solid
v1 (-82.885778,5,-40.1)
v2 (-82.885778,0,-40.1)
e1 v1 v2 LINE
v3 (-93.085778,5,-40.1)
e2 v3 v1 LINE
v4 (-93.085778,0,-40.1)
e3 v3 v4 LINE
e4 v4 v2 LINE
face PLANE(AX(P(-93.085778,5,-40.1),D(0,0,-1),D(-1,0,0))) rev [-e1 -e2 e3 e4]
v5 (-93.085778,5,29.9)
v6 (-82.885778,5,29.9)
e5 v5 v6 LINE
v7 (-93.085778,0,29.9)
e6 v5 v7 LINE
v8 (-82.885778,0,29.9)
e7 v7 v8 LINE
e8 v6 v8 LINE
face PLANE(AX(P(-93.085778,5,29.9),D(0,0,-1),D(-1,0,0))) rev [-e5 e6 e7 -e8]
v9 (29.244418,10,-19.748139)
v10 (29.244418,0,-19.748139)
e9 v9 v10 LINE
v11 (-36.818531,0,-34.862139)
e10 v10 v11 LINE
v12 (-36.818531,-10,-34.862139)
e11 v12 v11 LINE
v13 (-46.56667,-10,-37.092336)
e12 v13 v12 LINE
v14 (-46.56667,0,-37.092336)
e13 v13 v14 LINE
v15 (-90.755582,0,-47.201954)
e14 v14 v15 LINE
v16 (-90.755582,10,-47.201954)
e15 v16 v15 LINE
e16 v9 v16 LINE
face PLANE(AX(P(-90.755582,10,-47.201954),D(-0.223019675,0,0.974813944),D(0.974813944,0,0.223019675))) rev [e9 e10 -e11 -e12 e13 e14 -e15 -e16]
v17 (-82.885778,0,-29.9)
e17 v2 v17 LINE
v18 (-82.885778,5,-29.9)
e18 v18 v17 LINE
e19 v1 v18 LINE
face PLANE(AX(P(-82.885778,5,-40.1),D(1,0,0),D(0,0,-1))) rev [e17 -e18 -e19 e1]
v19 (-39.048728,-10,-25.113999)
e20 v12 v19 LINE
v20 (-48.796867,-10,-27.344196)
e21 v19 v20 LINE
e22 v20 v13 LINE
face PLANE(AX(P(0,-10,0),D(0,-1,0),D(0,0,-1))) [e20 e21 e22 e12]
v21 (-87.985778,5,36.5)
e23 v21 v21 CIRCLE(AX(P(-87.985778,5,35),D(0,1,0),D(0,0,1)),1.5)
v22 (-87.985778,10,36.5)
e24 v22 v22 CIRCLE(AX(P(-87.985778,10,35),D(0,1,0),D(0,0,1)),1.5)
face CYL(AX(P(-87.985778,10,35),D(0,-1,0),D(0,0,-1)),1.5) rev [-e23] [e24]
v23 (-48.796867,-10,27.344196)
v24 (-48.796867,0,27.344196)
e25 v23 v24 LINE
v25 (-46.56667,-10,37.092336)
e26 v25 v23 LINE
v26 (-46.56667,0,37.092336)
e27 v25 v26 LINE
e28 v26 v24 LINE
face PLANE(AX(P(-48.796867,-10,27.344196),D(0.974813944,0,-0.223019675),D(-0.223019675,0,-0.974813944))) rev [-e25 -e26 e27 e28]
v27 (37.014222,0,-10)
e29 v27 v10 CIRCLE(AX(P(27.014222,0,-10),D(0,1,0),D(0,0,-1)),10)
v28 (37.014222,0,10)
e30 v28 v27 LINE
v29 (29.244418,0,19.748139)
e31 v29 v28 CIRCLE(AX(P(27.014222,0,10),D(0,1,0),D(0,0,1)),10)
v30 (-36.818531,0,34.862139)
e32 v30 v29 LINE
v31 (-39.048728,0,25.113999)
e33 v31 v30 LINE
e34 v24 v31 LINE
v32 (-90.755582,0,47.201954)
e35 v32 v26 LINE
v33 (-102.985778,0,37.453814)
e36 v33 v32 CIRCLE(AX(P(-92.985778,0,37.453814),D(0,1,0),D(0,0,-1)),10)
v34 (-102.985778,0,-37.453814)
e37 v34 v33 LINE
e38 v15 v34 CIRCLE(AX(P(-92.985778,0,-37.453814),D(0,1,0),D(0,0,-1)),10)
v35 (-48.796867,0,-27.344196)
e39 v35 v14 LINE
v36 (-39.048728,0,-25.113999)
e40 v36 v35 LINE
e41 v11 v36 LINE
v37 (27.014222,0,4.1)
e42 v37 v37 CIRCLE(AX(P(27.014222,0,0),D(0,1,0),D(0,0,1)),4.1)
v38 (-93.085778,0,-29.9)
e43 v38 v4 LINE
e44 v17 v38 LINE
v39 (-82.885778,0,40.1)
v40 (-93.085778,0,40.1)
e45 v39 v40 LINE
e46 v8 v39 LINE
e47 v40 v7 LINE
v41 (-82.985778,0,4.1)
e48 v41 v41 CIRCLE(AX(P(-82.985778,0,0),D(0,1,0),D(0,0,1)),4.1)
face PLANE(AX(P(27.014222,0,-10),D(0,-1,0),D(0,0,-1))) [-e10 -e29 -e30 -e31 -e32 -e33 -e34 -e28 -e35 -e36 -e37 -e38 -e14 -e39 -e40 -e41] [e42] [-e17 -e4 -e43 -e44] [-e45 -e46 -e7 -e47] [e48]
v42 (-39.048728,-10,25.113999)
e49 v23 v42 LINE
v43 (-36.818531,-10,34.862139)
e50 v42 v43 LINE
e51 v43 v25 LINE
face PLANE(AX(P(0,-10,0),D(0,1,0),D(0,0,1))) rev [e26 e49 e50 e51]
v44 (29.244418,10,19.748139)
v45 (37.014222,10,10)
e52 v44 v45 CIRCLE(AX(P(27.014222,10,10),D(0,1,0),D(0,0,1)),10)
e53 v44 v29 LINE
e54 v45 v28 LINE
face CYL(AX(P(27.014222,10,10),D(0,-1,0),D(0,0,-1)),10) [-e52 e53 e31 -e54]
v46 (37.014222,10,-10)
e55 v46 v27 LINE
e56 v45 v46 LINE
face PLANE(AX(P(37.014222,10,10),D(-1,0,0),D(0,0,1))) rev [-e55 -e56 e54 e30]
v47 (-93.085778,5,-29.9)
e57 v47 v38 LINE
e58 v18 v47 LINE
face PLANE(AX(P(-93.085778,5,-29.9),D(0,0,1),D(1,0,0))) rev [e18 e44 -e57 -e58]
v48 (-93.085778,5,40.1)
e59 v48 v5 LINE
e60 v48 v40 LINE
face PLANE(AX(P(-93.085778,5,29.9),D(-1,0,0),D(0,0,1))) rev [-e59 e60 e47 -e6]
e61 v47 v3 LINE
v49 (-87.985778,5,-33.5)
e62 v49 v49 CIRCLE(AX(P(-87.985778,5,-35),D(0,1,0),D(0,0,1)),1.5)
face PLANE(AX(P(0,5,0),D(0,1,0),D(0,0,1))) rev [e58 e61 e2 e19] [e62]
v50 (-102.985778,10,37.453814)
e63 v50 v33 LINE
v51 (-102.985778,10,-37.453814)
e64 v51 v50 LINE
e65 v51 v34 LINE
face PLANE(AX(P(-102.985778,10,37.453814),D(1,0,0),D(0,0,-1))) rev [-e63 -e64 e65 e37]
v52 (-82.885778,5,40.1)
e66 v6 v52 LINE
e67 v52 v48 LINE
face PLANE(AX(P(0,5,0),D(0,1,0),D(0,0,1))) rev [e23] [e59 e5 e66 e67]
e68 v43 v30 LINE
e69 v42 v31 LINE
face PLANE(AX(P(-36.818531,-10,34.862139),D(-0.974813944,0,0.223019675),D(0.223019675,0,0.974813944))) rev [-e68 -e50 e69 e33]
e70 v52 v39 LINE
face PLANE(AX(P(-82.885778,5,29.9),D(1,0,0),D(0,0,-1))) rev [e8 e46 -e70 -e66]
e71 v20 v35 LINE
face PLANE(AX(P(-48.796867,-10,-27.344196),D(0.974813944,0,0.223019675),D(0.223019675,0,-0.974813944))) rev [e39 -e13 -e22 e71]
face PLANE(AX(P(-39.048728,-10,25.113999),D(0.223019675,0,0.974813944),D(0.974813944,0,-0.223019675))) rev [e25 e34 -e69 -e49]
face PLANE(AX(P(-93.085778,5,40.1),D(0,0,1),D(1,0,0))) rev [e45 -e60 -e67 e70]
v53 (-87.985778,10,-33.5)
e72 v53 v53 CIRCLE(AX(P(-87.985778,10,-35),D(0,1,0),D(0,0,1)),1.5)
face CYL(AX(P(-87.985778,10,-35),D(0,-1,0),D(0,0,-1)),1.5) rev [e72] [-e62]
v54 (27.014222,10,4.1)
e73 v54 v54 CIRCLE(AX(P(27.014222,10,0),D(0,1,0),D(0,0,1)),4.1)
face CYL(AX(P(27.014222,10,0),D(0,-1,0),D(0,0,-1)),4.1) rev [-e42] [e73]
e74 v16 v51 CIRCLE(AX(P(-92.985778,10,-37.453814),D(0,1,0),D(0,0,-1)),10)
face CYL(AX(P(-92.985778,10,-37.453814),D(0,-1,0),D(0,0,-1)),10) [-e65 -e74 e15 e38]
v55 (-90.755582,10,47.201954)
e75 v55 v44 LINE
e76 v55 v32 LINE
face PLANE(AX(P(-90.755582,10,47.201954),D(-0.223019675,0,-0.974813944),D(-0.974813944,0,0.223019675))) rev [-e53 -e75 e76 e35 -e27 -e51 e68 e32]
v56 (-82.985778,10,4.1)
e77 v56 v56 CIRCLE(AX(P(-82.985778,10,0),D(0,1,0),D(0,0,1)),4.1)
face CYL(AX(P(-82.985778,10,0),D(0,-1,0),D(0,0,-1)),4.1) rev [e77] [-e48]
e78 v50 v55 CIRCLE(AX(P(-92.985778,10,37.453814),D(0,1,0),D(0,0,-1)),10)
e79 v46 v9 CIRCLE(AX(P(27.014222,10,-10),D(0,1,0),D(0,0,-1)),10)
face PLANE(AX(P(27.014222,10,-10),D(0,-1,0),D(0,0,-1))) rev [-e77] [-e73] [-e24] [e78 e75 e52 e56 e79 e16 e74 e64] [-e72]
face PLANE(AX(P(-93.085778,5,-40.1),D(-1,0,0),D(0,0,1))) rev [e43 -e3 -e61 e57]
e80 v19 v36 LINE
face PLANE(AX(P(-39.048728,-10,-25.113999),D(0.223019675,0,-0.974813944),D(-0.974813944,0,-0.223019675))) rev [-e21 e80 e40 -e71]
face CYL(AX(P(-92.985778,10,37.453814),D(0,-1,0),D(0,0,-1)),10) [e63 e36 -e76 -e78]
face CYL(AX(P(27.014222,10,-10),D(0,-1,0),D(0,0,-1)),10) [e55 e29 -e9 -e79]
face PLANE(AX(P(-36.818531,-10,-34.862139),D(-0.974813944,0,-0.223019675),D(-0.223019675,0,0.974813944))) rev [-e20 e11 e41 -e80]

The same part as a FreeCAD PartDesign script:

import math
import FreeCAD as App
import Part
import Sketcher

V = App.Vector
Q = App.Units.Quantity

doc = App.newDocument("Part")
params = doc.addObject("Spreadsheet::Sheet", "Params")
for row, (alias, value) in enumerate([
    ("sketch1_diameter", "3 mm"),
    ("sketch1_radius", "10 mm"),
    ("sketch1_diameter2", "8.2 mm"),
    ("sketch1_height", "20 mm"),
    ("pad1_length", "10 mm"),
    ("sketch2_width", "10.2 mm"),
    ("pocket1_length", "5 mm"),
    ("sketch3_length", "10 mm"),
    ("pad2_length", "10 mm"),
], start=1):
    params.set(f"A{row}", alias)
    params.set(f"B{row}", "=" + value)
    params.setAlias(f"B{row}", alias)

body = doc.addObject("PartDesign::Body", "Body")

# Sketch on XZ plane
sketch1 = doc.addObject("Sketcher::SketchObject", "Sketch")
body.addObject(sketch1)
sketch1.AttachmentSupport = (doc.XZ_Plane, [""])
sketch1.MapMode = "FlatFace"
sketch1.addGeometry(Part.LineSegment(V(-90.8, 47.2, 0), V(29.2, 19.7, 0)), False)
sketch1.addGeometry(Part.ArcOfCircle(Part.Circle(V(27, 10, 0), V(0, 0, 1), 10), math.radians(0), math.radians(77)), False)
sketch1.addGeometry(Part.LineSegment(V(37, 10, 0), V(37, -10, 0)), False)
sketch1.addGeometry(Part.ArcOfCircle(Part.Circle(V(27, -10, 0), V(0, 0, 1), 10), math.radians(-77), math.radians(0)), False)
sketch1.addGeometry(Part.LineSegment(V(29.2, -19.7, 0), V(-90.8, -47.2, 0)), False)
sketch1.addGeometry(Part.ArcOfCircle(Part.Circle(V(-93, -37.5, 0), V(0, 0, 1), 10), math.radians(180), math.radians(283)), False)
sketch1.addGeometry(Part.LineSegment(V(-103, -37.5, 0), V(-103, 37.5, 0)), False)
sketch1.addGeometry(Part.ArcOfCircle(Part.Circle(V(-93, 37.5, 0), V(0, 0, 1), 10), math.radians(77), math.radians(180)), False)
sketch1.addGeometry(Part.Circle(V(-88, 35, 0), V(0, 0, 1), 1.5), False)
sketch1.addGeometry(Part.Circle(V(-83, 0, 0), V(0, 0, 1), 4.1), False)
sketch1.addGeometry(Part.Circle(V(-88, -35, 0), V(0, 0, 1), 1.5), False)
sketch1.addGeometry(Part.Circle(V(27, 0, 0), V(0, 0, 1), 4.1), False)
sketch1.addConstraint(Sketcher.Constraint("Tangent", 0, 2, 1, 2))
sketch1.addConstraint(Sketcher.Constraint("Tangent", 1, 1, 2, 1))
sketch1.addConstraint(Sketcher.Constraint("Tangent", 2, 2, 3, 2))
sketch1.addConstraint(Sketcher.Constraint("Tangent", 3, 1, 4, 1))
sketch1.addConstraint(Sketcher.Constraint("Tangent", 4, 2, 5, 2))
sketch1.addConstraint(Sketcher.Constraint("Tangent", 5, 1, 6, 1))
sketch1.addConstraint(Sketcher.Constraint("Tangent", 6, 2, 7, 2))
sketch1.addConstraint(Sketcher.Constraint("Tangent", 7, 1, 0, 1))
sketch1.addConstraint(Sketcher.Constraint("Vertical", 2))
sketch1.addConstraint(Sketcher.Constraint("Vertical", 6))
sketch1.addConstraint(Sketcher.Constraint("Equal", 1, 3))
sketch1.addConstraint(Sketcher.Constraint("Equal", 3, 5))
sketch1.addConstraint(Sketcher.Constraint("Equal", 5, 7))
sketch1.addConstraint(Sketcher.Constraint("Equal", 8, 10))
sketch1.addConstraint(Sketcher.Constraint("Equal", 9, 11))
sketch1.addConstraint(Sketcher.Constraint("Symmetric", 8, 3, 10, 3, -1))
sketch1.addConstraint(Sketcher.Constraint("Symmetric", 0, 2, 3, 1, -1))
sketch1.addConstraint(Sketcher.Constraint("PointOnObject", 9, 3, -1))
sketch1.addConstraint(Sketcher.Constraint("PointOnObject", 11, 3, -1))
sketch1.addConstraint(Sketcher.Constraint("Vertical", 3, 3, 11, 3))
sketch1.addConstraint(Sketcher.Constraint("Diameter", 8, Q("3 mm")))
sketch1.addConstraint(Sketcher.Constraint("Radius", 1, Q("10 mm")))
sketch1.addConstraint(Sketcher.Constraint("Diameter", 9, Q("8.2 mm")))
sketch1.addConstraint(Sketcher.Constraint("DistanceY", 2, 2, 2, 1, Q("20 mm")))
sketch1.addConstraint(Sketcher.Constraint("DistanceY", -1, 1, 8, 3, Q("35 mm")))
sketch1.addConstraint(Sketcher.Constraint("DistanceX", 5, 3, 3, 3, Q("120 mm")))
sketch1.addConstraint(Sketcher.Constraint("DistanceX", 7, 3, 8, 3, Q("5 mm")))
sketch1.addConstraint(Sketcher.Constraint("DistanceX", 8, 3, 9, 3, Q("5 mm")))
sketch1.addConstraint(Sketcher.Constraint("DistanceY", 6, 1, 6, 2, Q("74.907629 mm")))
sketch1.addConstraint(Sketcher.Constraint("DistanceX", -1, 1, 1, 3, Q("27.014222 mm")))
sketch1.setExpression("Constraints[20]", "Params.sketch1_diameter")
sketch1.setExpression("Constraints[21]", "Params.sketch1_radius")
sketch1.setExpression("Constraints[22]", "Params.sketch1_diameter2")
sketch1.setExpression("Constraints[23]", "Params.sketch1_height")
pad1 = doc.addObject("PartDesign::Pad", "Pad")
body.addObject(pad1)
pad1.Profile = sketch1
pad1.setExpression("Length", "Params.pad1_length")
pad1.Reversed = True

# Sketch on XZ plane
sketch2 = doc.addObject("Sketcher::SketchObject", "Sketch001")
body.addObject(sketch2)
sketch2.AttachmentSupport = (doc.XZ_Plane, [""])
sketch2.MapMode = "FlatFace"
sketch2.addGeometry(Part.LineSegment(V(-93, 40, 0), V(-93, 30, 0)), False)
sketch2.addGeometry(Part.LineSegment(V(-93, 30, 0), V(-83, 30, 0)), False)
sketch2.addGeometry(Part.LineSegment(V(-83, 30, 0), V(-83, 40, 0)), False)
sketch2.addGeometry(Part.LineSegment(V(-83, 40, 0), V(-93, 40, 0)), False)
sketch2.addGeometry(Part.LineSegment(V(-93, -30, 0), V(-93, -40, 0)), False)
sketch2.addGeometry(Part.LineSegment(V(-93, -40, 0), V(-83, -40, 0)), False)
sketch2.addGeometry(Part.LineSegment(V(-83, -40, 0), V(-83, -30, 0)), False)
sketch2.addGeometry(Part.LineSegment(V(-83, -30, 0), V(-93, -30, 0)), False)
sketch2.addConstraint(Sketcher.Constraint("Coincident", 0, 2, 1, 1))
sketch2.addConstraint(Sketcher.Constraint("Coincident", 1, 2, 2, 1))
sketch2.addConstraint(Sketcher.Constraint("Coincident", 2, 2, 3, 1))
sketch2.addConstraint(Sketcher.Constraint("Coincident", 3, 2, 0, 1))
sketch2.addConstraint(Sketcher.Constraint("Coincident", 4, 2, 5, 1))
sketch2.addConstraint(Sketcher.Constraint("Coincident", 5, 2, 6, 1))
sketch2.addConstraint(Sketcher.Constraint("Coincident", 6, 2, 7, 1))
sketch2.addConstraint(Sketcher.Constraint("Coincident", 7, 2, 4, 1))
sketch2.addConstraint(Sketcher.Constraint("Vertical", 0))
sketch2.addConstraint(Sketcher.Constraint("Horizontal", 1))
sketch2.addConstraint(Sketcher.Constraint("Vertical", 2))
sketch2.addConstraint(Sketcher.Constraint("Horizontal", 3))
sketch2.addConstraint(Sketcher.Constraint("Vertical", 4))
sketch2.addConstraint(Sketcher.Constraint("Horizontal", 5))
sketch2.addConstraint(Sketcher.Constraint("Vertical", 6))
sketch2.addConstraint(Sketcher.Constraint("Horizontal", 7))
sketch2.addConstraint(Sketcher.Constraint("Symmetric", 3, 2, 4, 2, -1))
sketch2.addConstraint(Sketcher.Constraint("Symmetric", 1, 2, 6, 2, -1))
sketch2.addConstraint(Sketcher.Constraint("Equal", 7, 0))
sketch2.addConstraint(Sketcher.Constraint("DistanceX", 1, 1, 1, 2, Q("10.2 mm")))
sketch2.addConstraint(Sketcher.Constraint("DistanceY", 4, 2, 0, 2, Q("70 mm")))
sketch2.addConstraint(Sketcher.Constraint("DistanceX", 0, 2, -1, 1, Q("93.085778 mm")))
sketch2.setExpression("Constraints[19]", "Params.sketch2_width")
pocket1 = doc.addObject("PartDesign::Pocket", "Pocket")
body.addObject(pocket1)
pocket1.Profile = sketch2
pocket1.setExpression("Length", "Params.pocket1_length")

# Sketch on XZ plane
sketch3 = doc.addObject("Sketcher::SketchObject", "Sketch002")
body.addObject(sketch3)
sketch3.AttachmentSupport = (doc.XZ_Plane, [""])
sketch3.MapMode = "FlatFace"
sketch3.addGeometry(Part.LineSegment(V(-37, 35, 0), V(-47, 37, 0)), False)
sketch3.addGeometry(Part.LineSegment(V(-47, 37, 0), V(-49, 27, 0)), False)
sketch3.addGeometry(Part.LineSegment(V(-49, 27, 0), V(-39, 25, 0)), False)
sketch3.addGeometry(Part.LineSegment(V(-39, 25, 0), V(-37, 35, 0)), False)
sketch3.addGeometry(Part.LineSegment(V(-47, -37, 0), V(-37, -35, 0)), False)
sketch3.addGeometry(Part.LineSegment(V(-37, -35, 0), V(-39, -25, 0)), False)
sketch3.addGeometry(Part.LineSegment(V(-39, -25, 0), V(-49, -27, 0)), False)
sketch3.addGeometry(Part.LineSegment(V(-49, -27, 0), V(-47, -37, 0)), False)
sketch3.addConstraint(Sketcher.Constraint("Coincident", 0, 2, 1, 1))
sketch3.addConstraint(Sketcher.Constraint("Coincident", 1, 2, 2, 1))
sketch3.addConstraint(Sketcher.Constraint("Coincident", 2, 2, 3, 1))
sketch3.addConstraint(Sketcher.Constraint("Coincident", 3, 2, 0, 1))
sketch3.addConstraint(Sketcher.Constraint("Coincident", 4, 2, 5, 1))
sketch3.addConstraint(Sketcher.Constraint("Coincident", 5, 2, 6, 1))
sketch3.addConstraint(Sketcher.Constraint("Coincident", 6, 2, 7, 1))
sketch3.addConstraint(Sketcher.Constraint("Coincident", 7, 2, 4, 1))
sketch3.addConstraint(Sketcher.Constraint("Symmetric", 3, 2, 4, 2, -1))
sketch3.addConstraint(Sketcher.Constraint("Symmetric", 2, 2, 5, 2, -1))
sketch3.addConstraint(Sketcher.Constraint("Symmetric", 1, 2, 6, 2, -1))
sketch3.addConstraint(Sketcher.Constraint("Symmetric", 0, 2, 7, 2, -1))
sketch3.addConstraint(Sketcher.Constraint("Perpendicular", 0, 1))
sketch3.addConstraint(Sketcher.Constraint("Perpendicular", 1, 2))
sketch3.addConstraint(Sketcher.Constraint("Perpendicular", 2, 3))
sketch3.addConstraint(Sketcher.Constraint("Equal", 0, 1))
sketch3.addConstraint(Sketcher.Constraint("Distance", 0, Q("10 mm")))
sketch3.addConstraint(Sketcher.Constraint("DistanceY", -1, 1, 2, 2, Q("25.113999 mm")))
sketch3.addConstraint(Sketcher.Constraint("DistanceX", 0, 2, -1, 1, Q("46.56667 mm")))
sketch3.addConstraint(Sketcher.Constraint("DistanceX", 3, 2, -1, 1, Q("36.818531 mm")))
sketch3.setExpression("Constraints[16]", "Params.sketch3_length")
pad2 = doc.addObject("PartDesign::Pad", "Pad001")
body.addObject(pad2)
pad2.Profile = sketch3
pad2.setExpression("Length", "Params.pad2_length")

doc.recompute()
